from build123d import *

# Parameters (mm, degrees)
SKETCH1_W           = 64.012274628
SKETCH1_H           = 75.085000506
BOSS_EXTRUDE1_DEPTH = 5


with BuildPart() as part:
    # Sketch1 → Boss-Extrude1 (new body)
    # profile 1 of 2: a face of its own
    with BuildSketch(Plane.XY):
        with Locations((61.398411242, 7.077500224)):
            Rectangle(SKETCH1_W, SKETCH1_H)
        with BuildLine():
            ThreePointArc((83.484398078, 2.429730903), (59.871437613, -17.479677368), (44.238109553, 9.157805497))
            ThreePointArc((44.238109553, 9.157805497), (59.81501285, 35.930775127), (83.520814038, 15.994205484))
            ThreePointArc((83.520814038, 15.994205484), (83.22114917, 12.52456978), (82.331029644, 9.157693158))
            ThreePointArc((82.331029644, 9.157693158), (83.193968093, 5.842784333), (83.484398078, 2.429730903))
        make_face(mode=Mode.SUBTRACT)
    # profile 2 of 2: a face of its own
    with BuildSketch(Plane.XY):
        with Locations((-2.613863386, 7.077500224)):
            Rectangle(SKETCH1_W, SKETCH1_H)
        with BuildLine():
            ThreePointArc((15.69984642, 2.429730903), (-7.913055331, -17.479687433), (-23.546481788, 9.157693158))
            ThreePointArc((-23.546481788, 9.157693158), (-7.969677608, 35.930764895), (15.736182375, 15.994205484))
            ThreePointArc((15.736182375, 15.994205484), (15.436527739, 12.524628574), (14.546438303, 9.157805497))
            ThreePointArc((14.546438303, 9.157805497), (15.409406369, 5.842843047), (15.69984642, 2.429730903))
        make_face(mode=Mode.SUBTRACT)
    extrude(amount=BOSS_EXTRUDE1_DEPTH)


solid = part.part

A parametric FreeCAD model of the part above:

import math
import FreeCAD as App
import Part
import Sketcher


def add_polygon(sketch, points):
    """Adds a closed chain of lines whose ends are joined by coincident constraints."""
    first, n = sketch.GeometryCount, len(points)
    for a, b in zip(points, points[1:] + points[:1]):
        sketch.addGeometry(Part.LineSegment(App.Vector(*a, 0), App.Vector(*b, 0)), False)
    for i in range(n):
        sketch.addConstraint(Sketcher.Constraint("Coincident", first + i, 2, first + (i + 1) % n, 1))

doc = App.newDocument("Part")
body = doc.addObject("PartDesign::Body", "Body")

# Sketch on XY plane
sketch1 = body.newObject("Sketcher::SketchObject", "Sketch")
sketch1.AttachmentSupport = (doc.getObject("XY_Plane"), [""])
sketch1.MapMode = "FlatFace"
add_polygon(sketch1, [(93, -30), (93, 45), (-35, 45), (-35, -30)])  # lines 0-3
sketch1.addGeometry(Part.ArcOfCircle(Part.Circle(App.Vector(63, 2, 0), App.Vector(0, 0, 1), 20), math.radians(0), math.radians(19.46)), False)  # 4
sketch1.addGeometry(Part.ArcOfCircle(Part.Circle(App.Vector(63, 2, 0), App.Vector(0, 0, 1), 20), math.radians(161), math.radians(360)), False)  # 5
sketch1.addGeometry(Part.ArcOfCircle(Part.Circle(App.Vector(63, 16, 0), App.Vector(0, 0, 1), 20), math.radians(0), math.radians(200)), False)  # 6
sketch1.addGeometry(Part.ArcOfCircle(Part.Circle(App.Vector(63, 16, 0), App.Vector(0, 0, 1), 20), math.radians(-19.75), math.radians(0)), False)  # 7
sketch1.addGeometry(Part.ArcOfCircle(Part.Circle(App.Vector(-5, 2, 0), App.Vector(0, 0, 1), 20), math.radians(161), math.radians(360)), False)  # 8
sketch1.addGeometry(Part.ArcOfCircle(Part.Circle(App.Vector(-5, 16, 0), App.Vector(0, 0, 1), 20), math.radians(0), math.radians(200)), False)  # 9
sketch1.addGeometry(Part.ArcOfCircle(Part.Circle(App.Vector(-5, 16, 0), App.Vector(0, 0, 1), 20), math.radians(-19.74), math.radians(0)), False)  # 10
sketch1.addGeometry(Part.ArcOfCircle(Part.Circle(App.Vector(-5, 2, 0), App.Vector(0, 0, 1), 20), math.radians(0), math.radians(19.46)), False)  # 11
sketch1.addConstraint(Sketcher.Constraint("Tangent", 4, 1, 5, 2))
sketch1.addConstraint(Sketcher.Constraint("Coincident", 5, 1, 6, 2))
sketch1.addConstraint(Sketcher.Constraint("Tangent", 6, 1, 7, 2))
sketch1.addConstraint(Sketcher.Constraint("Coincident", 7, 1, 4, 2))
sketch1.addConstraint(Sketcher.Constraint("Coincident", 8, 1, 9, 2))
sketch1.addConstraint(Sketcher.Constraint("Tangent", 9, 1, 10, 2))
sketch1.addConstraint(Sketcher.Constraint("Coincident", 10, 1, 11, 2))
sketch1.addConstraint(Sketcher.Constraint("Tangent", 11, 1, 8, 2))
sketch1.addConstraint(Sketcher.Constraint("Vertical", 0))
sketch1.addConstraint(Sketcher.Constraint("Horizontal", 1))
sketch1.addConstraint(Sketcher.Constraint("Vertical", 2))
sketch1.addConstraint(Sketcher.Constraint("Horizontal", 3))
sketch1.addConstraint(Sketcher.Constraint("Equal", 4, 5))
sketch1.addConstraint(Sketcher.Constraint("Equal", 6, 7))
sketch1.addConstraint(Sketcher.Constraint("Equal", 5, 8))
sketch1.addConstraint(Sketcher.Constraint("Equal", 7, 9))
sketch1.addConstraint(Sketcher.Constraint("Equal", 9, 10))
sketch1.addConstraint(Sketcher.Constraint("Equal", 8, 11))
sketch1.addConstraint(Sketcher.Constraint("Horizontal", 5, 3, 8, 3))
sketch1.addConstraint(Sketcher.Constraint("Horizontal", 7, 3, 9, 3))
sketch1.addConstraint(Sketcher.Constraint("Horizontal", 11, 3, 4, 1))
sketch1.addConstraint(Sketcher.Constraint("Horizontal", 10, 3, 6, 1))
sketch1.addConstraint(Sketcher.Constraint("Horizontal", 7, 1, 8, 1))
sketch1.addConstraint(Sketcher.Constraint("Horizontal", 6, 1, 9, 1))
sketch1.addConstraint(Sketcher.Constraint("Horizontal", 4, 1, 11, 1))
sketch1.addConstraint(Sketcher.Constraint("DistanceX", 8, 3, -1, 1, 4.500002))
sketch1.addConstraint(Sketcher.Constraint("DistanceY", 0, 1, 0, 2, 75.085001))
sketch1.addConstraint(Sketcher.Constraint("DistanceY", -1, 1, 0, 2, 44.62))
sketch1.addConstraint(Sketcher.Constraint("DistanceX", 1, 2, -1, 1, 34.620001))
sketch1.addConstraint(Sketcher.Constraint("Radius", 4, 20.199848))
sketch1.addConstraint(Sketcher.Constraint("DistanceX", 4, 3, 0, 2, 30.119999))
sketch1.addConstraint(Sketcher.Constraint("Radius", 6, 20.236224))
sketch1.addConstraint(Sketcher.Constraint("DistanceX", 1, 2, 1, 1, 128.024549))
sketch1.addConstraint(Sketcher.Constraint("DistanceY", 5, 1, 7, 3, 6.8364))
sketch1.addConstraint(Sketcher.Constraint("DistanceY", -1, 1, 4, 3, 2.429731))
sketch1.addConstraint(Sketcher.Constraint("DistanceX", -1, 1, 6, 3, 63.28459))
pad1 = body.newObject("PartDesign::Pad", "Pad")
pad1.Profile = sketch1
pad1.Length = 5

doc.recompute()
